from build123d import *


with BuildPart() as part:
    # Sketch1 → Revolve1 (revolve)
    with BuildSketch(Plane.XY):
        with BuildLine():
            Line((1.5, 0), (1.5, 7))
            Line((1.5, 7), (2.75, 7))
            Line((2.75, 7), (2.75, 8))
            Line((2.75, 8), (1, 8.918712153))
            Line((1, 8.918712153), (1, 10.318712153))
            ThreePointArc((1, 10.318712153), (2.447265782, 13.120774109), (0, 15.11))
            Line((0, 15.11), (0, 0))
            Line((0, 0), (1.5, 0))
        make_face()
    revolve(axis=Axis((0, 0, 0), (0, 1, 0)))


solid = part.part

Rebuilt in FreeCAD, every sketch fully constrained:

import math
import FreeCAD as App
import Part
import Sketcher

doc = App.newDocument("Part")
params = doc.addObject("Spreadsheet::Sheet", "Params")
for row, (alias, value) in enumerate([
    ("sketch1_radius", "2.5 mm"),
    ("sketch1_height", "7 mm"),
    ("sketch1_height2", "1 mm"),
    ("sketch1_width", "1.5 mm"),
    ("sketch1_height3", "1.4 mm"),
    ("revolution_angle", "360 deg"),
], start=1):
    params.set(f"A{row}", alias)
    params.set(f"B{row}", "=" + value)
    params.setAlias(f"B{row}", alias)

body = doc.addObject("PartDesign::Body", "Body")

# Sketch on XY plane
sketch1 = body.newObject("Sketcher::SketchObject", "Sketch")
sketch1.AttachmentSupport = (doc.getObject("XY_Plane"), [""])
sketch1.MapMode = "FlatFace"
sketch1.addGeometry([
    Part.LineSegment(App.Vector(1.5, 0, 0), App.Vector(1.5, 7, 0)),  # 0
    Part.LineSegment(App.Vector(1.5, 7, 0), App.Vector(2.8, 7, 0)),  # 1
    Part.LineSegment(App.Vector(2.8, 7, 0), App.Vector(2.8, 8, 0)),  # 2
    Part.LineSegment(App.Vector(2.8, 8, 0), App.Vector(1, 8.9, 0)),  # 3
    Part.LineSegment(App.Vector(1, 8.9, 0), App.Vector(1, 10.3, 0)),  # 4
    Part.ArcOfCircle(Part.Circle(App.Vector(0, 12.6, 0), App.Vector(0, 0, 1), 2.5), math.radians(-66), math.radians(90)),  # 5
    Part.LineSegment(App.Vector(0, 15.1, 0), App.Vector(0, 0, 0)),  # 6
    Part.LineSegment(App.Vector(0, 0, 0), App.Vector(1.5, 0, 0)),  # 7
], False)
sketch1.addConstraint([
    Sketcher.Constraint("Coincident", 0, 2, 1, 1),
    Sketcher.Constraint("Coincident", 1, 2, 2, 1),
    Sketcher.Constraint("Coincident", 2, 2, 3, 1),
    Sketcher.Constraint("Coincident", 3, 2, 4, 1),
    Sketcher.Constraint("Coincident", 4, 2, 5, 1),
    Sketcher.Constraint("Coincident", 5, 2, 6, 1),
    Sketcher.Constraint("Coincident", 6, 2, 7, 1),
    Sketcher.Constraint("Coincident", 7, 2, 0, 1),
    Sketcher.Constraint("Vertical", 0),
    Sketcher.Constraint("Horizontal", 1),
    Sketcher.Constraint("Vertical", 2),
    Sketcher.Constraint("Vertical", 4),
    Sketcher.Constraint("Vertical", 6),
    Sketcher.Constraint("Horizontal", 7),
    Sketcher.Constraint("Coincident", 6, 2, -1, 1),
    Sketcher.Constraint("PointOnObject", 5, 3, -2),
    Sketcher.Constraint("Radius", 5, 2.5),
    Sketcher.Constraint("DistanceY", 0, 1, 0, 2, 7.0),
    Sketcher.Constraint("DistanceY", 2, 1, 2, 2, 1.0),
    Sketcher.Constraint("DistanceX", 7, 1, 7, 2, 1.5),
    Sketcher.Constraint("DistanceY", 4, 1, 4, 2, 1.4),
    Sketcher.Constraint("DistanceX", -1, 1, 3, 2, 1.0),
    Sketcher.Constraint("DistanceX", 1, 1, 1, 2, 1.25),
    Sketcher.Constraint("DistanceY", 6, 2, 6, 1, 15.11),
])
sketch1.setExpression("Constraints[16]", "Params.sketch1_radius")
sketch1.setExpression("Constraints[17]", "Params.sketch1_height")
sketch1.setExpression("Constraints[18]", "Params.sketch1_height2")
sketch1.setExpression("Constraints[19]", "Params.sketch1_width")
sketch1.setExpression("Constraints[20]", "Params.sketch1_height3")
revolution = body.newObject("PartDesign::Revolution", "Revolution")
revolution.Profile = sketch1
revolution.ReferenceAxis = (sketch1, ["V_Axis"])
revolution.setExpression("Angle", "Params.revolution_angle")

doc.recompute()
